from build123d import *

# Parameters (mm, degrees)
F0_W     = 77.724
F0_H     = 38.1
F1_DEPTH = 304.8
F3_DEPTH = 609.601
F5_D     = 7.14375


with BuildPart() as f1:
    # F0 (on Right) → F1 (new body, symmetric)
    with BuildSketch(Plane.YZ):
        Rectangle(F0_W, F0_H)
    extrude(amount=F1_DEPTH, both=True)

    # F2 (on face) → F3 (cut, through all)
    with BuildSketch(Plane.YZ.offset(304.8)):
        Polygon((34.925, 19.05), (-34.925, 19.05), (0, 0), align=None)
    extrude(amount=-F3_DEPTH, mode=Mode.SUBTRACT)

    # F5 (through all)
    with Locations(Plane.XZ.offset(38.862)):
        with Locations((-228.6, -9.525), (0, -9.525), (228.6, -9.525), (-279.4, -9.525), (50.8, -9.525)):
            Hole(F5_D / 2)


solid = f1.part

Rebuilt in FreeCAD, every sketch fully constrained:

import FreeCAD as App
import Part
import Sketcher
Q = App.Units.Quantity

doc = App.newDocument("Part")
body = doc.addObject("PartDesign::Body", "Body")

sketch1 = body.newObject("Sketcher::SketchObject", "Sketch")
sketch1.AttachmentSupport = (doc.getObject("YZ_Plane"), [""])
sketch1.MapMode = "FlatFace"
sketch1.addGeometry([
    Part.LineSegment(App.Vector(-39, 19, 0), App.Vector(-39, -19, 0)),
    Part.LineSegment(App.Vector(-39, -19, 0), App.Vector(39, -19, 0)),
    Part.LineSegment(App.Vector(39, -19, 0), App.Vector(39, 19, 0)),
    Part.LineSegment(App.Vector(39, 19, 0), App.Vector(-39, 19, 0)),
], False)
sketch1.addConstraint([
    Sketcher.Constraint("Coincident", 0, 2, 1, 1),
    Sketcher.Constraint("Coincident", 1, 2, 2, 1),
    Sketcher.Constraint("Coincident", 2, 2, 3, 1),
    Sketcher.Constraint("Coincident", 3, 2, 0, 1),
    Sketcher.Constraint("Vertical", 0),
    Sketcher.Constraint("Horizontal", 1),
    Sketcher.Constraint("Vertical", 2),
    Sketcher.Constraint("Horizontal", 3),
    Sketcher.Constraint("Symmetric", 0, 2, 2, 2, -1, 1),
    Sketcher.Constraint("DistanceY", 0, 2, 0, 1, Q("1.5 in")),
    Sketcher.Constraint("DistanceX", 1, 1, 1, 2, Q("3.06 in")),
])
pad1 = body.newObject("PartDesign::Pad", "Pad")
pad1.Profile = sketch1
pad1.Length = Q("24 in")
pad1.Midplane = True

sketch2 = body.newObject("Sketcher::SketchObject", "Sketch001")
sketch2.AttachmentSupport = (doc.getObject("YZ_Plane"), [""])
sketch2.MapMode = "FlatFace"
sketch2.AttachmentOffset = App.Placement(App.Vector(0, 0, 12 * 25.4), App.Rotation())
sketch2.addGeometry([
    Part.LineSegment(App.Vector(35, 19, 0), App.Vector(-35, 19, 0)),
    Part.LineSegment(App.Vector(-35, 19, 0), App.Vector(0, 0, 0)),
    Part.LineSegment(App.Vector(0, 0, 0), App.Vector(35, 19, 0)),
], False)
sketch2.addConstraint([
    Sketcher.Constraint("Coincident", 0, 2, 1, 1),
    Sketcher.Constraint("Coincident", 1, 2, 2, 1),
    Sketcher.Constraint("Coincident", 2, 2, 0, 1),
    Sketcher.Constraint("Horizontal", 0),
    Sketcher.Constraint("Coincident", 1, 2, -1, 1),
    Sketcher.Constraint("Equal", 1, 2),
    Sketcher.Constraint("DistanceX", 0, 2, 0, 1, Q("2.75 in")),
    Sketcher.Constraint("DistanceY", -1, 1, 0, 2, Q("0.75 in")),
])
pocket1 = body.newObject("PartDesign::Pocket", "Pocket")
pocket1.Profile = sketch2
pocket1.Type = "ThroughAll"

sketch3 = body.newObject("Sketcher::SketchObject", "Sketch002")
sketch3.AttachmentSupport = (doc.getObject("XZ_Plane"), [""])
sketch3.MapMode = "FlatFace"
sketch3.AttachmentOffset = App.Placement(App.Vector(0, 0, 1.53 * 25.4), App.Rotation())
sketch3.addGeometry([
    Part.Circle(App.Vector(-228.6, -9.5, 0), App.Vector(0, 0, 1), 3.6),
    Part.Circle(App.Vector(0, -9.5, 0), App.Vector(0, 0, 1), 3.6),
    Part.Circle(App.Vector(228.6, -9.5, 0), App.Vector(0, 0, 1), 3.6),
    Part.Circle(App.Vector(-279.4, -9.5, 0), App.Vector(0, 0, 1), 3.6),
    Part.Circle(App.Vector(50.8, -9.5, 0), App.Vector(0, 0, 1), 3.6),
], False)
sketch3.addConstraint([
    Sketcher.Constraint("Equal", 0, 1),
    Sketcher.Constraint("Equal", 1, 2),
    Sketcher.Constraint("Equal", 2, 3),
    Sketcher.Constraint("Equal", 3, 4),
    Sketcher.Constraint("Symmetric", 0, 3, 2, 3, -2),
    Sketcher.Constraint("PointOnObject", 1, 3, -2),
    Sketcher.Constraint("Horizontal", 0, 3, 1, 3),
    Sketcher.Constraint("Horizontal", 2, 3, 3, 3),
    Sketcher.Constraint("Horizontal", 3, 3, 4, 3),
    Sketcher.Constraint("Diameter", 0, Q("0.28125 in")),
    Sketcher.Constraint("DistanceX", 0, 3, -1, 1, Q("9 in")),
    Sketcher.Constraint("DistanceX", 3, 3, -1, 1, Q("11 in")),
    Sketcher.Constraint("DistanceX", -1, 1, 4, 3, Q("2 in")),
    Sketcher.Constraint("DistanceY", 0, 3, -1, 1, Q("0.375 in")),
])
doc.recompute()
hole = body.newObject("PartDesign::Hole", "Hole")
hole.Profile = sketch3
hole.ThreadType = "None"
hole.Diameter = Q("0.28125 in")
hole.DepthType = "ThroughAll"

doc.recompute()
